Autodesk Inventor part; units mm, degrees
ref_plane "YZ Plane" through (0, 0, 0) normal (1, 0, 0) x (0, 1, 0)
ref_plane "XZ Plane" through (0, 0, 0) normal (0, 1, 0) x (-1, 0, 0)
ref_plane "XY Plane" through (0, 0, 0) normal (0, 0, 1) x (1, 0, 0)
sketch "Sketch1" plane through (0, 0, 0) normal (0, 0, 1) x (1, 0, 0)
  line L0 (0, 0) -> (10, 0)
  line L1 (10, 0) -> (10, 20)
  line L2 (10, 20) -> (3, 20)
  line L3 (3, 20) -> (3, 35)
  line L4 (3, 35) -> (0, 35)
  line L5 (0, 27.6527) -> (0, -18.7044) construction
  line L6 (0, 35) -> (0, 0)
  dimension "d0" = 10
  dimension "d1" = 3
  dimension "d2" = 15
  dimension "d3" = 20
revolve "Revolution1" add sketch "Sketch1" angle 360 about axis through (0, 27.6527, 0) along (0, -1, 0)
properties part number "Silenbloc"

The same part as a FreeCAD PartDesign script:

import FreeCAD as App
import Part
import Sketcher
from FreeCAD import Vector


def add_polygon(sketch, points):
    """Adds a closed chain of lines whose ends are joined by coincident constraints."""
    first, n = sketch.GeometryCount, len(points)
    for a, b in zip(points, points[1:] + points[:1]):
        sketch.addGeometry(Part.LineSegment(App.Vector(*a, 0), App.Vector(*b, 0)), False)
    for i in range(n):
        sketch.addConstraint(Sketcher.Constraint("Coincident", first + i, 2, first + (i + 1) % n, 1))

doc = App.newDocument("Part")
body = doc.addObject("PartDesign::Body", "Body")

# Sketch on XY plane
sketch1 = doc.addObject("Sketcher::SketchObject", "Sketch")
body.addObject(sketch1)
sketch1.AttachmentSupport = (doc.XY_Plane, [""])
sketch1.MapMode = "FlatFace"
add_polygon(sketch1, [(0, 35), (0, 0), (10, 0), (10, 20), (3, 20), (3, 35)])  # lines 0-5
sketch1.addConstraint([
    Sketcher.Constraint("Vertical", 0),
    Sketcher.Constraint("Horizontal", 1),
    Sketcher.Constraint("Vertical", 2),
    Sketcher.Constraint("Horizontal", 3),
    Sketcher.Constraint("Vertical", 4),
    Sketcher.Constraint("Horizontal", 5),
    Sketcher.Constraint("Coincident", 0, 2, -1, 1),
    Sketcher.Constraint("DistanceX", 1, 1, 1, 2, 10.0),
    Sketcher.Constraint("DistanceX", 5, 2, 5, 1, 3.0),
    Sketcher.Constraint("DistanceY", 2, 1, 2, 2, 20.0),
    Sketcher.Constraint("DistanceY", 4, 1, 4, 2, 15.0),
])
revolution = doc.addObject("PartDesign::Revolution", "Revolution")
body.addObject(revolution)
revolution.Profile = sketch1
revolution.ReferenceAxis = (sketch1, ["V_Axis"])
revolution.Angle = 360

doc.recompute()
